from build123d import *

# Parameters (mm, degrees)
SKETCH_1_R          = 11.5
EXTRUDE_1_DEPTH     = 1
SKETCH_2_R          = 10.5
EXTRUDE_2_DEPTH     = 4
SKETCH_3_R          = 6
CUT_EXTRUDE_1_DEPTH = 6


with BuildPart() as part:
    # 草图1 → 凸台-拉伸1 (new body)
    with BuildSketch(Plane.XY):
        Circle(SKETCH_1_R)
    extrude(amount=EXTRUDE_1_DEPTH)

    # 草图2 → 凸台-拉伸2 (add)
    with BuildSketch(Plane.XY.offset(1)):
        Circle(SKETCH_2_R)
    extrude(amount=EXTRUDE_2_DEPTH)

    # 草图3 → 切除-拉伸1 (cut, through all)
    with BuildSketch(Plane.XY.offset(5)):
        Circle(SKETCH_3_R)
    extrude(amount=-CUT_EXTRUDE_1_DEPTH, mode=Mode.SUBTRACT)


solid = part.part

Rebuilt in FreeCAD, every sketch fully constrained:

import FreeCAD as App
import Part
import Sketcher

V = App.Vector
Q = App.Units.Quantity

doc = App.newDocument("Part")
body = doc.addObject("PartDesign::Body", "Body")

sketch1 = body.newObject("Sketcher::SketchObject", "Sketch")
sketch1.AttachmentSupport = (doc.getObject("XY_Plane"), [""])
sketch1.MapMode = "FlatFace"
sketch1.addGeometry(Part.Circle(V(0, 0, 0), V(0, 0, 1), 12), False)
sketch1.addConstraint(Sketcher.Constraint("Coincident", 0, 3, -1, 1))
sketch1.addConstraint(Sketcher.Constraint("Diameter", 0, Q("23 mm")))
pad1 = body.newObject("PartDesign::Pad", "Pad")
pad1.Profile = sketch1
pad1.Length = 1

sketch2 = body.newObject("Sketcher::SketchObject", "Sketch001")
sketch2.AttachmentSupport = (doc.getObject("XY_Plane"), [""])
sketch2.MapMode = "FlatFace"
sketch2.AttachmentOffset = App.Placement(V(0, 0, 1), App.Rotation())
sketch2.addGeometry(Part.Circle(V(0, 0, 0), V(0, 0, 1), 10), False)
sketch2.addConstraint(Sketcher.Constraint("Coincident", 0, 3, -1, 1))
sketch2.addConstraint(Sketcher.Constraint("Diameter", 0, Q("21 mm")))
pad2 = body.newObject("PartDesign::Pad", "Pad001")
pad2.Profile = sketch2
pad2.Length = 4

sketch3 = body.newObject("Sketcher::SketchObject", "Sketch002")
sketch3.AttachmentSupport = (doc.getObject("XY_Plane"), [""])
sketch3.MapMode = "FlatFace"
sketch3.AttachmentOffset = App.Placement(V(0, 0, 5), App.Rotation())
sketch3.addGeometry(Part.Circle(V(0, 0, 0), V(0, 0, 1), 6), False)
sketch3.addConstraint(Sketcher.Constraint("Coincident", 0, 3, -1, 1))
sketch3.addConstraint(Sketcher.Constraint("Diameter", 0, Q("12 mm")))
pocket1 = body.newObject("PartDesign::Pocket", "Pocket")
pocket1.Profile = sketch3
pocket1.Type = "ThroughAll"

doc.recompute()
